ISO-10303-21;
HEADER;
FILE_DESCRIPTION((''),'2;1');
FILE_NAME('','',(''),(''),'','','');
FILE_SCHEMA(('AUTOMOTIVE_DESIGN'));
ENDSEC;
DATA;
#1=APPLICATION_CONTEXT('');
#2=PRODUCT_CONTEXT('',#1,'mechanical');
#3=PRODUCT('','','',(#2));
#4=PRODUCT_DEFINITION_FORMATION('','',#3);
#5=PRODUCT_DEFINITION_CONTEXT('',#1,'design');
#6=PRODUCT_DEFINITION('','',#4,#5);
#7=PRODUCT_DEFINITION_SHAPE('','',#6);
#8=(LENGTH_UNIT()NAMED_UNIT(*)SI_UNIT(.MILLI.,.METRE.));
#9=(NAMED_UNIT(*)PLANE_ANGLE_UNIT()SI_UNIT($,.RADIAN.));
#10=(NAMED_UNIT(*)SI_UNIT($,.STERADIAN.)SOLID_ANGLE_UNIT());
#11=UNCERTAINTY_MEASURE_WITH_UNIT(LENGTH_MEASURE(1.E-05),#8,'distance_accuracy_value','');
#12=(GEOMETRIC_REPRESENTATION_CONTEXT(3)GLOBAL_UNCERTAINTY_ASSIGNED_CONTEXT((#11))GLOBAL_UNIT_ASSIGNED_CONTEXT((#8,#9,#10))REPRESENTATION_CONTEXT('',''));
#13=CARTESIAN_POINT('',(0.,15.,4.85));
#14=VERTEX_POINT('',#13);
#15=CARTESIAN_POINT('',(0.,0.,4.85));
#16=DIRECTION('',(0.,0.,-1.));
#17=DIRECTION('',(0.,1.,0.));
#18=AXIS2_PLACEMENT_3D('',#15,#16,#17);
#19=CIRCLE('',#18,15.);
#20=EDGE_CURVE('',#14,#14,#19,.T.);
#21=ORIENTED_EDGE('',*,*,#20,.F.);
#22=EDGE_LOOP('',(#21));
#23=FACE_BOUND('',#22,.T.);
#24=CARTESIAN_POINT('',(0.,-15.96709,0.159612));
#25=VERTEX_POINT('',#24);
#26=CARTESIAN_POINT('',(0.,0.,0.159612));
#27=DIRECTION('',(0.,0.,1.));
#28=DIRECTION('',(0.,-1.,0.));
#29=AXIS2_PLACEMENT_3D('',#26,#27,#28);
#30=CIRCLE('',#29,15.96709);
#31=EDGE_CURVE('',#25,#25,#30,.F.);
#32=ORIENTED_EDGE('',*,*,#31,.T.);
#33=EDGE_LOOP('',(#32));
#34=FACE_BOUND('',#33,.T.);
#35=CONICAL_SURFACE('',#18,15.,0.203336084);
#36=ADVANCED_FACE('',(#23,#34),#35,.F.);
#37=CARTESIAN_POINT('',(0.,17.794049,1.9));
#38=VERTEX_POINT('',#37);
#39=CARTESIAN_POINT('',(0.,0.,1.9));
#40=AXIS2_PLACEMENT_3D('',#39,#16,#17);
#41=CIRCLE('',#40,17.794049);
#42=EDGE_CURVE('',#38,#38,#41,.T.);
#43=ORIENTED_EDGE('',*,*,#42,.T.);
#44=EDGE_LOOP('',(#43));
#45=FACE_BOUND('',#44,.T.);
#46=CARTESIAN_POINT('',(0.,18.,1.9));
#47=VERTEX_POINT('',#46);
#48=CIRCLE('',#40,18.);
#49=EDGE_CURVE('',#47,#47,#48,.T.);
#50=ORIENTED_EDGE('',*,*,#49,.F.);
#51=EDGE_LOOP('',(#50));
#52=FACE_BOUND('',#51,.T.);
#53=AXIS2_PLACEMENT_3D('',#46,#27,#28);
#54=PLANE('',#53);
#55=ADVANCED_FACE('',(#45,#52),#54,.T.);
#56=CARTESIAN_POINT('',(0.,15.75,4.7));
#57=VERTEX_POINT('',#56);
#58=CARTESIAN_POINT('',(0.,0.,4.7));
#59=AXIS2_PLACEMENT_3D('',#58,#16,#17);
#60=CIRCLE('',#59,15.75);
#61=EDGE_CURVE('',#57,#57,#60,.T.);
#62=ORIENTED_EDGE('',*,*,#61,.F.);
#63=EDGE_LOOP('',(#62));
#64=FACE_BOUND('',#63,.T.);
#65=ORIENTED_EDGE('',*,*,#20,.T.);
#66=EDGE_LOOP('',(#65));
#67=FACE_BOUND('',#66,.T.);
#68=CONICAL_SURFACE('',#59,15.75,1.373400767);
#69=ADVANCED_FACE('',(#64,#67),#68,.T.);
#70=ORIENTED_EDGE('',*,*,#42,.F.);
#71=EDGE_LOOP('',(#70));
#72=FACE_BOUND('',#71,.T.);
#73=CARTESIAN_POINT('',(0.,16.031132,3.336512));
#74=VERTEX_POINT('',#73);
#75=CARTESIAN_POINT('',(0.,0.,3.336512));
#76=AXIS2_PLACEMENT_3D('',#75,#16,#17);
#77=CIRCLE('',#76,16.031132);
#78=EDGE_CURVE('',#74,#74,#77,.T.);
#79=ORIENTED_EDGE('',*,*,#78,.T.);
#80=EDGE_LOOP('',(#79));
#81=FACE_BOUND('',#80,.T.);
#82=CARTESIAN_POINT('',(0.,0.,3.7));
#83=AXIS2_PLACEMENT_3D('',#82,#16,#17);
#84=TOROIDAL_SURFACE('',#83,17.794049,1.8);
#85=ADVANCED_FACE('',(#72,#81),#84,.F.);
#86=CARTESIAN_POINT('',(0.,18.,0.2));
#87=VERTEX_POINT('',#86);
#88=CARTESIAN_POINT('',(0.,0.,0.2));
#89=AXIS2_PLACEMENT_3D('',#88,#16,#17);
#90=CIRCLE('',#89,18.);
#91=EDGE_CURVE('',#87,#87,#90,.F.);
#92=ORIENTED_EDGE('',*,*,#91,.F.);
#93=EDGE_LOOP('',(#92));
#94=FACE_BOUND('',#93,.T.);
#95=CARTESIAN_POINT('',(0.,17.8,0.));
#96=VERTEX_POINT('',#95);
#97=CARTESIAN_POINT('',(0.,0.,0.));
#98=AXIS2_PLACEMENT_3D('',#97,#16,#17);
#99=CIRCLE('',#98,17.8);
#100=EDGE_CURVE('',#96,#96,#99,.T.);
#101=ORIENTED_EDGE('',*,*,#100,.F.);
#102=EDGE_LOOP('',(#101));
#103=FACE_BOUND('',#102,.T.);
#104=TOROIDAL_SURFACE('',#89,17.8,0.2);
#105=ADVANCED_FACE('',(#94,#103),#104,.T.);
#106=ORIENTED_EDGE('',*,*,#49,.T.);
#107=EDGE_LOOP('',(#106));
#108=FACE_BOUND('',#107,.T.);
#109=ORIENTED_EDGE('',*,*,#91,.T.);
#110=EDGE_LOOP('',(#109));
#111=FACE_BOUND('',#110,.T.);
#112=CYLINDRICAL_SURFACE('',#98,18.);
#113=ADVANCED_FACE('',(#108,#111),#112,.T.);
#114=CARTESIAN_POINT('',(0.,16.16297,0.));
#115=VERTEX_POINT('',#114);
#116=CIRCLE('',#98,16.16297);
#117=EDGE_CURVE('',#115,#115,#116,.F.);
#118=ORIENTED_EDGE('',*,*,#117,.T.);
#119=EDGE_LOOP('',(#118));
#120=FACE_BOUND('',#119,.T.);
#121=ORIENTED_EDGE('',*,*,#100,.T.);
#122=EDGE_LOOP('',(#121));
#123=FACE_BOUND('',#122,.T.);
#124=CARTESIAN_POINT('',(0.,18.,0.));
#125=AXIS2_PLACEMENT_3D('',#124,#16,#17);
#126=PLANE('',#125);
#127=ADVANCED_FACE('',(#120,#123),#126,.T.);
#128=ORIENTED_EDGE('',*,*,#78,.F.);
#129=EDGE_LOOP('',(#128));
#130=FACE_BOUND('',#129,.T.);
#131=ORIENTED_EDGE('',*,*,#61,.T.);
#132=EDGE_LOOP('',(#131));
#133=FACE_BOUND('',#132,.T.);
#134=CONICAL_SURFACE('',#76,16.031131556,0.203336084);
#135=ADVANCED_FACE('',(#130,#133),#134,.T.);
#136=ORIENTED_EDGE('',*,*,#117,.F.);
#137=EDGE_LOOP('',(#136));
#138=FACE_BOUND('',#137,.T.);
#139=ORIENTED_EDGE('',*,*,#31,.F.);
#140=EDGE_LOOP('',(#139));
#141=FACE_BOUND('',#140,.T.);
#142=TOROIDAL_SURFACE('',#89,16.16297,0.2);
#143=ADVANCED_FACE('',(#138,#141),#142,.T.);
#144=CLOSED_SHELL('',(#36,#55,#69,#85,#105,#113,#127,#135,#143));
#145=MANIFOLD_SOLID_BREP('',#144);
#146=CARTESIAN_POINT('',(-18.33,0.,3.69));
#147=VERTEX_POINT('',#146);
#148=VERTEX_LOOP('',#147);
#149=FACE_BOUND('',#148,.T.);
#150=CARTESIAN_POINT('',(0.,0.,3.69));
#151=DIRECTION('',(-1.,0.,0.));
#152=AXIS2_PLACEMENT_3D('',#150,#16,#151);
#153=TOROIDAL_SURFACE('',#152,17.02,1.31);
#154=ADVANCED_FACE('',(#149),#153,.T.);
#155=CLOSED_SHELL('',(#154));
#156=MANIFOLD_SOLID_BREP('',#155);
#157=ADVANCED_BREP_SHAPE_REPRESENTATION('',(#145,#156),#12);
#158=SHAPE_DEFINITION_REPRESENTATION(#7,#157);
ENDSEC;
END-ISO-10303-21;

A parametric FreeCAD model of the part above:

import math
import FreeCAD as App
import Part
import Sketcher
Q = App.Units.Quantity


def edges_at(feature, points):
    """Names of the edges that pass closest to the given points."""
    edges = feature.Shape.Edges
    near = lambda p: min(range(len(edges)), key=lambda i: edges[i].distToShape(Part.Vertex(*p))[0])
    return sorted({f"Edge{near(p) + 1}" for p in points})

doc = App.newDocument("Part")
body = doc.addObject("PartDesign::Body", "Body")

# Sketch on YZ plane
sketch1 = body.newObject("Sketcher::SketchObject", "Sketch")
sketch1.AttachmentSupport = (doc.getObject("YZ_Plane"), [""])
sketch1.MapMode = "FlatFace"
sketch1.addGeometry([
    Part.LineSegment(App.Vector(18, 0, 0), App.Vector(18, 1.9, 0)),  # 0
    Part.LineSegment(App.Vector(18, 1.9, 0), App.Vector(17.794049, 1.9, 0)),  # 1
    Part.ArcOfCircle(Part.Circle(App.Vector(17.794049, 3.7, 0), App.Vector(0, 0, 1), 1.8), math.radians(-168.349701), math.radians(-90)),  # 2
    Part.LineSegment(App.Vector(16.031132, 3.336512, 0), App.Vector(15.75, 4.7, 0)),  # 3
    Part.LineSegment(App.Vector(15.75, 4.7, 0), App.Vector(15, 4.85, 0)),  # 4
    Part.LineSegment(App.Vector(15, 4.85, 0), App.Vector(16, 0, 0)),  # 5
    Part.LineSegment(App.Vector(16, 0, 0), App.Vector(18, 0, 0)),  # 6
], False)
sketch1.addConstraint([
    Sketcher.Constraint("Coincident", 0, 2, 1, 1),
    Sketcher.Constraint("Tangent", 1, 2, 2, 2),
    Sketcher.Constraint("Tangent", 2, 1, 3, 1),
    Sketcher.Constraint("Coincident", 3, 2, 4, 1),
    Sketcher.Constraint("Coincident", 4, 2, 5, 1),
    Sketcher.Constraint("Coincident", 5, 2, 6, 1),
    Sketcher.Constraint("Coincident", 6, 2, 0, 1),
    Sketcher.Constraint("Vertical", 0),
    Sketcher.Constraint("Horizontal", 1),
    Sketcher.Constraint("Horizontal", 6),
    Sketcher.Constraint("PointOnObject", 5, 2, -1),
    Sketcher.Constraint("Parallel", 3, 5),
    Sketcher.Constraint("Radius", 2, Q("1.8 mm")),
    Sketcher.Constraint("DistanceX", 6, 1, 6, 2, Q("2 mm")),
    Sketcher.Constraint("DistanceY", 0, 1, 0, 2, Q("1.9 mm")),
    Sketcher.Constraint("DistanceX", -1, 1, 0, 2, Q("18 mm")),
    Sketcher.Constraint("DistanceX", -1, 1, 4, 2, Q("15 mm")),
    Sketcher.Constraint("DistanceY", 2, 3, 3, 2, Q("1 mm")),
    Sketcher.Constraint("DistanceX", -1, 1, 3, 2, Q("15.75 mm")),
    Sketcher.Constraint("DistanceY", -1, 1, 4, 2, Q("4.85 mm")),
])
revolution = body.newObject("PartDesign::Revolution", "Revolution")
revolution.Profile = sketch1
revolution.ReferenceAxis = (sketch1, ["V_Axis"])
revolution.Angle = 360
doc.recompute()

fillet = body.newObject("PartDesign::Fillet", "Fillet")
fillet.Base = (revolution, edges_at(revolution, [(0, -16, 0), (0, -18, 0)]))
fillet.Radius = 0.2
body2 = doc.addObject("PartDesign::Body", "Body001")

# Sketch on YZ plane
sketch2 = body2.newObject("Sketcher::SketchObject", "Sketch001")
sketch2.AttachmentSupport = (doc.getObject("YZ_Plane001"), [""])
sketch2.MapMode = "FlatFace"
sketch2.addGeometry(Part.Circle(App.Vector(17.02, 3.69, 0), App.Vector(0, 0, 1), 1.31), False)
sketch2.addConstraint([
    Sketcher.Constraint("Diameter", 0, Q("2.62 mm")),
    Sketcher.Constraint("DistanceX", -1, 1, 0, 3, Q("17.02 mm")),
    Sketcher.Constraint("DistanceY", -1, 1, 0, 3, Q("3.69 mm")),
])
revolution2 = body2.newObject("PartDesign::Revolution", "Revolution001")
revolution2.Profile = sketch2
revolution2.ReferenceAxis = (sketch2, ["V_Axis"])
revolution2.Angle = 360

doc.recompute()
